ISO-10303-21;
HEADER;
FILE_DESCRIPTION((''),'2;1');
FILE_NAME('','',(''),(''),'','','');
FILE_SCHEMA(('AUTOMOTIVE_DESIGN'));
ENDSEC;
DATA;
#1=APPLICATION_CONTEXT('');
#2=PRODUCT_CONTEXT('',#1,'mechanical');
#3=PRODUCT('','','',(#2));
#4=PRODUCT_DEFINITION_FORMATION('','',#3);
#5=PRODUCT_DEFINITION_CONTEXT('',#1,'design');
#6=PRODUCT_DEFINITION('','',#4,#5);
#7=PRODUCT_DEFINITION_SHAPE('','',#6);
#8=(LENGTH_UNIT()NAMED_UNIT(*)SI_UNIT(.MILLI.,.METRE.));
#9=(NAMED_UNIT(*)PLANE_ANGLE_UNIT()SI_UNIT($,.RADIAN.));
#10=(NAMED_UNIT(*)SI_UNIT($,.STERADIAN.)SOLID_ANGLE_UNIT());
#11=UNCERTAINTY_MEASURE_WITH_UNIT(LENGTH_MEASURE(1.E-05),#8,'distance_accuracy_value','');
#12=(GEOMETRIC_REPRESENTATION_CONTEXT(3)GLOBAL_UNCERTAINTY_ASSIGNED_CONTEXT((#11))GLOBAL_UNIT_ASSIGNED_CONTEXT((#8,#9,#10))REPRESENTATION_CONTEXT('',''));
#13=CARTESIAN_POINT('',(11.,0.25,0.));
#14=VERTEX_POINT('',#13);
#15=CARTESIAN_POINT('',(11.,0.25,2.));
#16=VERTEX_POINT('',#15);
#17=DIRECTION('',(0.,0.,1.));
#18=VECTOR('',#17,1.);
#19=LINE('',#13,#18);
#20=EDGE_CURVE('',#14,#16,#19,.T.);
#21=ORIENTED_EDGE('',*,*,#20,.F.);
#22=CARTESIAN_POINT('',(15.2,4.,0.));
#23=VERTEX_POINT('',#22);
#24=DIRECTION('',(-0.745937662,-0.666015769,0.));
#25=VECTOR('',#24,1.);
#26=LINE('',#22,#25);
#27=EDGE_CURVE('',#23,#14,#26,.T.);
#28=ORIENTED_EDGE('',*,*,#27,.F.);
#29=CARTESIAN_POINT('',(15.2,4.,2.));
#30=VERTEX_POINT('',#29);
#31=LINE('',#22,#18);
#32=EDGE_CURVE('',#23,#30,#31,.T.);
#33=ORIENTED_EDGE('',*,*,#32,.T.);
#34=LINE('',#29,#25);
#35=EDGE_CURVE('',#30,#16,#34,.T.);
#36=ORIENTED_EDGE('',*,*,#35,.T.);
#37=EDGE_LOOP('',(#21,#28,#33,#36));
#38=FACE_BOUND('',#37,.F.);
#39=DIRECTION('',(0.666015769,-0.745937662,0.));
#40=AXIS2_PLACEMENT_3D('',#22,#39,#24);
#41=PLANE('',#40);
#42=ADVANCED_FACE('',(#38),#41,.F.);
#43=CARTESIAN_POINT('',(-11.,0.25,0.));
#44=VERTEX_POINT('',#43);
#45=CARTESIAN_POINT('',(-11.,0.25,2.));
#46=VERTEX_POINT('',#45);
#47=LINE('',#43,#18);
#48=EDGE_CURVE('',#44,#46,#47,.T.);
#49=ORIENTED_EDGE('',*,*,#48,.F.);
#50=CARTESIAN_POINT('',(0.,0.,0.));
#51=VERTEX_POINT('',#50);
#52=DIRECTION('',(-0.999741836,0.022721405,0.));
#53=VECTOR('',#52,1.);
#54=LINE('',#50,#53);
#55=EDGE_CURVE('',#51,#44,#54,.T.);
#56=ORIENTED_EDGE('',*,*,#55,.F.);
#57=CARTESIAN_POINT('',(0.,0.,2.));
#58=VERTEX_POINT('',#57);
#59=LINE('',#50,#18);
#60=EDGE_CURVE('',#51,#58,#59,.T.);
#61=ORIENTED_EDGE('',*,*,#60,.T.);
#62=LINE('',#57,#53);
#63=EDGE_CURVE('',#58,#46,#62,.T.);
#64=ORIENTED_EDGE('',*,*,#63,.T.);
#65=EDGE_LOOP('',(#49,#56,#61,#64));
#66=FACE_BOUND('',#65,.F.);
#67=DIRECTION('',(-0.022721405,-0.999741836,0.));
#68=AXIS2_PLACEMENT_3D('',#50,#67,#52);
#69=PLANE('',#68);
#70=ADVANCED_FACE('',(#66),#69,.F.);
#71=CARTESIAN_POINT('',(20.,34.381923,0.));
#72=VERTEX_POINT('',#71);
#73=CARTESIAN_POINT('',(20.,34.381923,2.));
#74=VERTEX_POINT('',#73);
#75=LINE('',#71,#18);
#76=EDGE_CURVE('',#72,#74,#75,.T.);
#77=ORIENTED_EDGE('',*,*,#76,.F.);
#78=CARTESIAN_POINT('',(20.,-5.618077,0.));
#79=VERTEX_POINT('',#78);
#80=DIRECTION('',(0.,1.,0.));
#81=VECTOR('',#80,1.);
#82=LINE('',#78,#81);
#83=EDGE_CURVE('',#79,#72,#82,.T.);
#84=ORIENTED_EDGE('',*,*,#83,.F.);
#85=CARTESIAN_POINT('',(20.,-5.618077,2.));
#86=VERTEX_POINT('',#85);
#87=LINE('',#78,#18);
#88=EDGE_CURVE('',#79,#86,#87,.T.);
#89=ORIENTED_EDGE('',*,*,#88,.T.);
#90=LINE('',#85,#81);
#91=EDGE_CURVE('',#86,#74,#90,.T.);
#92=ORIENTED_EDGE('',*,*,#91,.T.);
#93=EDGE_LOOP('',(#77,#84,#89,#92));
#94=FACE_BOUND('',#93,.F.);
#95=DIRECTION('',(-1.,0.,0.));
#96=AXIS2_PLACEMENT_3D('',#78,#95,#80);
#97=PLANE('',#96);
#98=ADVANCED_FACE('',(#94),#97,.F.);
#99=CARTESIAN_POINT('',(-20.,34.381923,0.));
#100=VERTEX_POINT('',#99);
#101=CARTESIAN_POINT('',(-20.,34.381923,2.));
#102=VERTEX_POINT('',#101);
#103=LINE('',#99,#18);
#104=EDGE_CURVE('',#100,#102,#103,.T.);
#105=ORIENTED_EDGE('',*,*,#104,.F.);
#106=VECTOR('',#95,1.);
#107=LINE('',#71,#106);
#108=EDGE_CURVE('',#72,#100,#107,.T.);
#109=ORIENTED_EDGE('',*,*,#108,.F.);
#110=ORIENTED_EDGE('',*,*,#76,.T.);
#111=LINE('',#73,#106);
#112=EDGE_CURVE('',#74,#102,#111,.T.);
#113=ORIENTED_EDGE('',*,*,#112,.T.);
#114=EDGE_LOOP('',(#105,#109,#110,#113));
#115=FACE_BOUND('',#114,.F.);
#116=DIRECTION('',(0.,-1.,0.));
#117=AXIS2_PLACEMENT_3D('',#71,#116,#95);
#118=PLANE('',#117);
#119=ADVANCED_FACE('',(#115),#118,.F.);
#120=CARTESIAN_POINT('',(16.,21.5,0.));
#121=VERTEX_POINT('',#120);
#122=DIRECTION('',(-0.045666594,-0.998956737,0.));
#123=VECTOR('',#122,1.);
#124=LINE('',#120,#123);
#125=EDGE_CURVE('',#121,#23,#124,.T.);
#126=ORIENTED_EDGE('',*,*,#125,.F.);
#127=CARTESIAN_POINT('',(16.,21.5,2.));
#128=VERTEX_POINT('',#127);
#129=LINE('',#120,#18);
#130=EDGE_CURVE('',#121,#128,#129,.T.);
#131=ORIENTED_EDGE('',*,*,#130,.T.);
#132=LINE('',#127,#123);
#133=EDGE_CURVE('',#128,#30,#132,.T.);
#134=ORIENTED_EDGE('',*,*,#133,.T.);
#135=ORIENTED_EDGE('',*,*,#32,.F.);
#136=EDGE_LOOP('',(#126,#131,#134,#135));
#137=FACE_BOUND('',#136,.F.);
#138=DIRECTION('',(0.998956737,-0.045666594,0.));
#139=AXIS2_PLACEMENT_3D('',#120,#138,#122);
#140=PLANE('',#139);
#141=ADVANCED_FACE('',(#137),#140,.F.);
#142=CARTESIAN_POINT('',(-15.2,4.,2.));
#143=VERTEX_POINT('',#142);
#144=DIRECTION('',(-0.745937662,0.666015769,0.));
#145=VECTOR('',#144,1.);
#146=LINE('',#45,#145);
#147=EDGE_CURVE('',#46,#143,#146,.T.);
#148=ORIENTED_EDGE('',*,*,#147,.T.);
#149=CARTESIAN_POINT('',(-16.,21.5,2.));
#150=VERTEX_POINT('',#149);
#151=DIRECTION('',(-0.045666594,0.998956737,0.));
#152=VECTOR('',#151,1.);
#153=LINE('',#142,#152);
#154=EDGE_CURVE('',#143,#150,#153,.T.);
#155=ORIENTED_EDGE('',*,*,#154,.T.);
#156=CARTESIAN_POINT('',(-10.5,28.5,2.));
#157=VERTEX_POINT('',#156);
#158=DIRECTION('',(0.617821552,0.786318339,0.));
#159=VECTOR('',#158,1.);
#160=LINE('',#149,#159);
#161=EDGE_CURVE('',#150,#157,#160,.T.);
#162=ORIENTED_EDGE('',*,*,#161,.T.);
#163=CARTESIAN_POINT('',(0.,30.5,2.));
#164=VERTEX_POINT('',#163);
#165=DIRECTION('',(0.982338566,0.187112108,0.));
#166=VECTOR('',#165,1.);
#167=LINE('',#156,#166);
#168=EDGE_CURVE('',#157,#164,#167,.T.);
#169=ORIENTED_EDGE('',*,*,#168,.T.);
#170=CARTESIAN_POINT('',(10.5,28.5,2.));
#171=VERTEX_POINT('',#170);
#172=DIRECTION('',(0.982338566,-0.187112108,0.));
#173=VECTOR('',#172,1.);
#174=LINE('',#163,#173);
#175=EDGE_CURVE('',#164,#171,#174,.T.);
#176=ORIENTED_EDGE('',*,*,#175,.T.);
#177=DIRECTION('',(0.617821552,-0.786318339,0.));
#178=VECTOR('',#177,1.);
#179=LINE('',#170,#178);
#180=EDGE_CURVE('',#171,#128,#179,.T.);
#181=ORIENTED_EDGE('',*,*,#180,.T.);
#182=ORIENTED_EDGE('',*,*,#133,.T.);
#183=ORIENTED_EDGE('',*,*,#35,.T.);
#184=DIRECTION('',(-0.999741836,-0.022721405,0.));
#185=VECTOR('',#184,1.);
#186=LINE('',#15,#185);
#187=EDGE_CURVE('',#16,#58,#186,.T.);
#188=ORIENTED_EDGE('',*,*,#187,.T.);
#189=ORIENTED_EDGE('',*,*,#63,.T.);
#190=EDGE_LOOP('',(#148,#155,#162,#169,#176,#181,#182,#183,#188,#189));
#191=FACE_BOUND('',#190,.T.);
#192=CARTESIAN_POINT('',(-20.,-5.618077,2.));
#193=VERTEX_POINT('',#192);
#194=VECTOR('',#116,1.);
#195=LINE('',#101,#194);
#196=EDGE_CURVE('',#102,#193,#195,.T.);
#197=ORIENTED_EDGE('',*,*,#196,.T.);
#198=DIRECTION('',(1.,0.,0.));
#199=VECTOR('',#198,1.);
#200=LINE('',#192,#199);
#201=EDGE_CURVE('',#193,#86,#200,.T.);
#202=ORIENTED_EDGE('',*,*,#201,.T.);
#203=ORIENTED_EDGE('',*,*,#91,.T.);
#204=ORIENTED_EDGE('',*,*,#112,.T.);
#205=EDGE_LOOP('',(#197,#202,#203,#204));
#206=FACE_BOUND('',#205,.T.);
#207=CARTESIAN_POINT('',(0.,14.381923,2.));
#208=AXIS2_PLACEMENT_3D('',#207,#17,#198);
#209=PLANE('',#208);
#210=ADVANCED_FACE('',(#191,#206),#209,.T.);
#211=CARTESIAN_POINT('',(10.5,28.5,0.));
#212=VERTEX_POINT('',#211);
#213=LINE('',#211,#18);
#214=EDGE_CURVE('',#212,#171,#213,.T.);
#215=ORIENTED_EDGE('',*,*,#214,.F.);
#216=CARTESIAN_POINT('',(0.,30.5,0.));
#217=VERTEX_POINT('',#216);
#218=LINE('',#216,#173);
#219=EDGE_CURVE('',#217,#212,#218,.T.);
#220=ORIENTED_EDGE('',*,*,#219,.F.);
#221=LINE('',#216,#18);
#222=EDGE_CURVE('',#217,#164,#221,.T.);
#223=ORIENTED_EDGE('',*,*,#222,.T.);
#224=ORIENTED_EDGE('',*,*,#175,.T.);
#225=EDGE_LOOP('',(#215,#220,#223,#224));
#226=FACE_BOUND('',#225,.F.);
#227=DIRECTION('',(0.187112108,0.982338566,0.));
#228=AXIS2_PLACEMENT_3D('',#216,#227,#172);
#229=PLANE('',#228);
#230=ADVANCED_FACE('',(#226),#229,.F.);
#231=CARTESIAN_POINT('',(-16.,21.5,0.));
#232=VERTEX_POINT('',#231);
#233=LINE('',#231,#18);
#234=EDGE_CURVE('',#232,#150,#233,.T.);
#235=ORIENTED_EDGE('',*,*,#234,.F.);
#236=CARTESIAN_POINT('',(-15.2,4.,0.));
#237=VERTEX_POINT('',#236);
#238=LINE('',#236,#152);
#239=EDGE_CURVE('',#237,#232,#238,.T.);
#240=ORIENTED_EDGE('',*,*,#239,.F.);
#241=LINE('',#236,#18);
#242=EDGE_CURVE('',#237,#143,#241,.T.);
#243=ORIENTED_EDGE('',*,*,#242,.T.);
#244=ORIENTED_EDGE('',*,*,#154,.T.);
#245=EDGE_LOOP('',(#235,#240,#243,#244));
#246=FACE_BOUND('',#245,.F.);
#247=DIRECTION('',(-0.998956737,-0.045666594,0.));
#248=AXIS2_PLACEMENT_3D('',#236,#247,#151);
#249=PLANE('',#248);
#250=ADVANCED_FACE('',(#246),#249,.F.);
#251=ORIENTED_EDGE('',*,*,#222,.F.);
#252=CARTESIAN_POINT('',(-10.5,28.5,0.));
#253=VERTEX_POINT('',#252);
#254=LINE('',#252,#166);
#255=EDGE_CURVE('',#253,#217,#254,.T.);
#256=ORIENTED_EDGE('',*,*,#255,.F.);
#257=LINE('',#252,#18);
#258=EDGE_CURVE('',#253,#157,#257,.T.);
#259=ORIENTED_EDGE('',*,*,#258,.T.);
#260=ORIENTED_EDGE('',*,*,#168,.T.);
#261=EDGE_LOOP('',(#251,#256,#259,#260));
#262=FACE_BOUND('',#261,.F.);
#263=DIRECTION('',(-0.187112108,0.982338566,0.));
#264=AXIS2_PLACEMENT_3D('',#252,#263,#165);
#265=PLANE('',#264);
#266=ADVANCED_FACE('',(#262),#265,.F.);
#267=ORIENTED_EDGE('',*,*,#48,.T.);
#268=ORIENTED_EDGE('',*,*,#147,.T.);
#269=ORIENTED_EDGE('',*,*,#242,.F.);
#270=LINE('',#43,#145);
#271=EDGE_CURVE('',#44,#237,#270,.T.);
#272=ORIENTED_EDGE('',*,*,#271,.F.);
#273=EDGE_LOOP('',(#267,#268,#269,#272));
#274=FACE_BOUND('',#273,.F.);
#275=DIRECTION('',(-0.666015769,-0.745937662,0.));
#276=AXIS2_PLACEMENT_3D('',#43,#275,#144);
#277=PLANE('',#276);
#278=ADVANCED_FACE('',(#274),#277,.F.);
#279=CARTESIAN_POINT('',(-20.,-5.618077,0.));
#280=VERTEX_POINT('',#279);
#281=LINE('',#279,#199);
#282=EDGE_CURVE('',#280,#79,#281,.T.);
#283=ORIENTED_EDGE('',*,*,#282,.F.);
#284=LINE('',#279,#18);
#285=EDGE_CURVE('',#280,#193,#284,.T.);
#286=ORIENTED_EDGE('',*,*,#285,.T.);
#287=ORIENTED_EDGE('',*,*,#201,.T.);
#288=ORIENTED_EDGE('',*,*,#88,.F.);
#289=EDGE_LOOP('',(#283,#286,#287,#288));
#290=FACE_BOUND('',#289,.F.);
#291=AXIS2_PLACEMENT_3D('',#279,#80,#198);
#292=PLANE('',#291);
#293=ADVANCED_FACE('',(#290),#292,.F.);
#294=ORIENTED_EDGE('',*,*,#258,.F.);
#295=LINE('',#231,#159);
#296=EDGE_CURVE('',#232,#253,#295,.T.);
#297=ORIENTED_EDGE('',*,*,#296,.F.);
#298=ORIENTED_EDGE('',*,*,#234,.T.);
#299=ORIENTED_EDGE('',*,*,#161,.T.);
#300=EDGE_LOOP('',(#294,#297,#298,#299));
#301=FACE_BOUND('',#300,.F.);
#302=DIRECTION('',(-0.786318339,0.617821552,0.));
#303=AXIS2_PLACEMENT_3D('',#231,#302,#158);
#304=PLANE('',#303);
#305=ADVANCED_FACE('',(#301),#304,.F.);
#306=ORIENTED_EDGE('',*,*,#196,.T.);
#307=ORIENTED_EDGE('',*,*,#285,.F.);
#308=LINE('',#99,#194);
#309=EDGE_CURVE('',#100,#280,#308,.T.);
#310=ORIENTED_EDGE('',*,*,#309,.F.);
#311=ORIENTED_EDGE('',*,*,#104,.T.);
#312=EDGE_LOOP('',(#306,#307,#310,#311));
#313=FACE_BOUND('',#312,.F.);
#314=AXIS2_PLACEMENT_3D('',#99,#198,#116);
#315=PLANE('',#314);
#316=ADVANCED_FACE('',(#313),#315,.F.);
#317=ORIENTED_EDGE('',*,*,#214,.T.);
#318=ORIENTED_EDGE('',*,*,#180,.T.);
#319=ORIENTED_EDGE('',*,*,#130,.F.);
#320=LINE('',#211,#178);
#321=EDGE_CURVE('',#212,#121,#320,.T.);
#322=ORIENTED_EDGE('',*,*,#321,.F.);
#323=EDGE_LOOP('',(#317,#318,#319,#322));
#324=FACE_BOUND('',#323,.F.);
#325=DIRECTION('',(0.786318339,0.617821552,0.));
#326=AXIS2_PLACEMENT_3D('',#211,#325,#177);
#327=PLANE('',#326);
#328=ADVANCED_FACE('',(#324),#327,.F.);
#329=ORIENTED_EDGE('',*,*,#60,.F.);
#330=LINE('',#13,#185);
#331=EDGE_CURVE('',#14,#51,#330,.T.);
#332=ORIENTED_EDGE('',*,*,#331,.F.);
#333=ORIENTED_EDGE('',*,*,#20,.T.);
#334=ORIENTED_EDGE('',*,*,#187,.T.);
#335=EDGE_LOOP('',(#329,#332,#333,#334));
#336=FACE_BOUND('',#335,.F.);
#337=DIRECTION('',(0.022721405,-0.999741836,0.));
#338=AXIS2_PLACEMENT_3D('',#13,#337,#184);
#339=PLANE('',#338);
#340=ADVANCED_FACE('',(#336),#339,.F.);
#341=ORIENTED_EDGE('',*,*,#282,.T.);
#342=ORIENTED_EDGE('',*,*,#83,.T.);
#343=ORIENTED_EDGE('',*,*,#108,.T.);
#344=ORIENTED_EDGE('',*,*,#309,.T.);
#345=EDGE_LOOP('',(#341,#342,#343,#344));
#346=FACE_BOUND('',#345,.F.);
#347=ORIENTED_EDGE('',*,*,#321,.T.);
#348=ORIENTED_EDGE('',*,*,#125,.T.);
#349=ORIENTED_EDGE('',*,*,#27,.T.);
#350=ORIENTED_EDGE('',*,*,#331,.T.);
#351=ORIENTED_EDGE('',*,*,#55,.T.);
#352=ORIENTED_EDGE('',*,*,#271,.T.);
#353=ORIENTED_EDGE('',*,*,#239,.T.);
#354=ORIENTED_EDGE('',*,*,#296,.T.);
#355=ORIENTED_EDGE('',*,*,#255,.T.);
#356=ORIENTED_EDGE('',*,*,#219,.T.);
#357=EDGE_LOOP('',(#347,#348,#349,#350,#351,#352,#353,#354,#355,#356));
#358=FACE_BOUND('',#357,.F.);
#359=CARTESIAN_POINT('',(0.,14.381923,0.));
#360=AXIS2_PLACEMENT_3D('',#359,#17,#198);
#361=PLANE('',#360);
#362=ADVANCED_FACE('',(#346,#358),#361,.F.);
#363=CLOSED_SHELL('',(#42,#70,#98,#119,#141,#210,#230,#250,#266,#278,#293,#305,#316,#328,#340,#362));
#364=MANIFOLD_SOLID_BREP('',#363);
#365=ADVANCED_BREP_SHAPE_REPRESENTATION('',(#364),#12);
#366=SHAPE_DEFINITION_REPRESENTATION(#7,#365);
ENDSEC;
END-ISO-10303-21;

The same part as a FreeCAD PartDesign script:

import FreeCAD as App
import Part
import Sketcher

V = App.Vector

doc = App.newDocument("Part")
body = doc.addObject("PartDesign::Body", "Body")

# Sketch on XY plane
sketch1 = body.newObject("Sketcher::SketchObject", "Sketch")
sketch1.AttachmentSupport = (doc.getObject("XY_Plane"), [""])
sketch1.MapMode = "FlatFace"
sketch1.addGeometry(Part.LineSegment(V(-20, -5.618077, 0), V(20, -5.618077, 0)), False)
sketch1.addGeometry(Part.LineSegment(V(20, -5.618077, 0), V(20, 34.381923, 0)), False)
sketch1.addGeometry(Part.LineSegment(V(20, 34.381923, 0), V(-20, 34.381923, 0)), False)
sketch1.addGeometry(Part.LineSegment(V(-20, 34.381923, 0), V(-20, -5.618077, 0)), False)
sketch1.addGeometry(Part.LineSegment(V(-16, 21.5, 0), V(-10.5, 28.5, 0)), False)
sketch1.addGeometry(Part.LineSegment(V(-10.5, 28.5, 0), V(0, 30.5, 0)), False)
sketch1.addGeometry(Part.LineSegment(V(0, 30.5, 0), V(10.5, 28.5, 0)), False)
sketch1.addGeometry(Part.LineSegment(V(10.5, 28.5, 0), V(16, 21.5, 0)), False)
sketch1.addGeometry(Part.LineSegment(V(16, 21.5, 0), V(15.2, 4, 0)), False)
sketch1.addGeometry(Part.LineSegment(V(15.2, 4, 0), V(11, 0.25, 0)), False)
sketch1.addGeometry(Part.LineSegment(V(11, 0.25, 0), V(0, 0, 0)), False)
sketch1.addGeometry(Part.LineSegment(V(0, 0, 0), V(-11, 0.25, 0)), False)
sketch1.addGeometry(Part.LineSegment(V(-11, 0.25, 0), V(-15.2, 4, 0)), False)
sketch1.addGeometry(Part.LineSegment(V(-15.2, 4, 0), V(-16, 21.5, 0)), False)
sketch1.addConstraint(Sketcher.Constraint("Coincident", 0, 2, 1, 1))
sketch1.addConstraint(Sketcher.Constraint("Coincident", 1, 2, 2, 1))
sketch1.addConstraint(Sketcher.Constraint("Coincident", 2, 2, 3, 1))
sketch1.addConstraint(Sketcher.Constraint("Coincident", 3, 2, 0, 1))
sketch1.addConstraint(Sketcher.Constraint("Coincident", 4, 2, 5, 1))
sketch1.addConstraint(Sketcher.Constraint("Coincident", 5, 2, 6, 1))
sketch1.addConstraint(Sketcher.Constraint("Coincident", 6, 2, 7, 1))
sketch1.addConstraint(Sketcher.Constraint("Coincident", 7, 2, 8, 1))
sketch1.addConstraint(Sketcher.Constraint("Coincident", 8, 2, 9, 1))
sketch1.addConstraint(Sketcher.Constraint("Coincident", 9, 2, 10, 1))
sketch1.addConstraint(Sketcher.Constraint("Coincident", 10, 2, 11, 1))
sketch1.addConstraint(Sketcher.Constraint("Coincident", 11, 2, 12, 1))
sketch1.addConstraint(Sketcher.Constraint("Coincident", 12, 2, 13, 1))
sketch1.addConstraint(Sketcher.Constraint("Coincident", 13, 2, 4, 1))
sketch1.addConstraint(Sketcher.Constraint("Horizontal", 0))
sketch1.addConstraint(Sketcher.Constraint("Vertical", 1))
sketch1.addConstraint(Sketcher.Constraint("Horizontal", 2))
sketch1.addConstraint(Sketcher.Constraint("Vertical", 3))
sketch1.addConstraint(Sketcher.Constraint("Coincident", 10, 2, -1, 1))
sketch1.addConstraint(Sketcher.Constraint("Symmetric", 4, 2, 6, 2, -2))
sketch1.addConstraint(Sketcher.Constraint("Symmetric", 9, 2, 11, 2, -2))
sketch1.addConstraint(Sketcher.Constraint("Symmetric", 8, 2, 12, 2, -2))
sketch1.addConstraint(Sketcher.Constraint("Symmetric", 7, 2, 13, 2, -2))
sketch1.addConstraint(Sketcher.Constraint("PointOnObject", 5, 2, -2))
sketch1.addConstraint(Sketcher.Constraint("Equal", 2, 1))
sketch1.addConstraint(Sketcher.Constraint("DistanceX", 0, 1, 0, 2, 40.0))
sketch1.addConstraint(Sketcher.Constraint("DistanceX", -1, 1, 0, 2, 20.0))
sketch1.addConstraint(Sketcher.Constraint("DistanceX", -1, 1, 7, 2, 16.0))
sketch1.addConstraint(Sketcher.Constraint("DistanceY", -1, 1, 8, 2, 4.0))
sketch1.addConstraint(Sketcher.Constraint("DistanceX", -1, 1, 9, 2, 11.0))
sketch1.addConstraint(Sketcher.Constraint("DistanceY", 4, 2, 5, 2, 2.0))
sketch1.addConstraint(Sketcher.Constraint("DistanceX", 4, 2, 6, 2, 21.0))
sketch1.addConstraint(Sketcher.Constraint("DistanceY", 7, 2, 6, 2, 7.0))
sketch1.addConstraint(Sketcher.Constraint("DistanceY", -1, 1, 4, 2, 28.5))
sketch1.addConstraint(Sketcher.Constraint("DistanceX", -1, 1, 8, 2, 15.2))
sketch1.addConstraint(Sketcher.Constraint("DistanceY", -1, 1, 9, 2, 0.25))
sketch1.addConstraint(Sketcher.Constraint("DistanceY", 0, 2, -1, 1, 5.618077))
pad1 = body.newObject("PartDesign::Pad", "Pad")
pad1.Profile = sketch1
pad1.Length = 2

doc.recompute()
